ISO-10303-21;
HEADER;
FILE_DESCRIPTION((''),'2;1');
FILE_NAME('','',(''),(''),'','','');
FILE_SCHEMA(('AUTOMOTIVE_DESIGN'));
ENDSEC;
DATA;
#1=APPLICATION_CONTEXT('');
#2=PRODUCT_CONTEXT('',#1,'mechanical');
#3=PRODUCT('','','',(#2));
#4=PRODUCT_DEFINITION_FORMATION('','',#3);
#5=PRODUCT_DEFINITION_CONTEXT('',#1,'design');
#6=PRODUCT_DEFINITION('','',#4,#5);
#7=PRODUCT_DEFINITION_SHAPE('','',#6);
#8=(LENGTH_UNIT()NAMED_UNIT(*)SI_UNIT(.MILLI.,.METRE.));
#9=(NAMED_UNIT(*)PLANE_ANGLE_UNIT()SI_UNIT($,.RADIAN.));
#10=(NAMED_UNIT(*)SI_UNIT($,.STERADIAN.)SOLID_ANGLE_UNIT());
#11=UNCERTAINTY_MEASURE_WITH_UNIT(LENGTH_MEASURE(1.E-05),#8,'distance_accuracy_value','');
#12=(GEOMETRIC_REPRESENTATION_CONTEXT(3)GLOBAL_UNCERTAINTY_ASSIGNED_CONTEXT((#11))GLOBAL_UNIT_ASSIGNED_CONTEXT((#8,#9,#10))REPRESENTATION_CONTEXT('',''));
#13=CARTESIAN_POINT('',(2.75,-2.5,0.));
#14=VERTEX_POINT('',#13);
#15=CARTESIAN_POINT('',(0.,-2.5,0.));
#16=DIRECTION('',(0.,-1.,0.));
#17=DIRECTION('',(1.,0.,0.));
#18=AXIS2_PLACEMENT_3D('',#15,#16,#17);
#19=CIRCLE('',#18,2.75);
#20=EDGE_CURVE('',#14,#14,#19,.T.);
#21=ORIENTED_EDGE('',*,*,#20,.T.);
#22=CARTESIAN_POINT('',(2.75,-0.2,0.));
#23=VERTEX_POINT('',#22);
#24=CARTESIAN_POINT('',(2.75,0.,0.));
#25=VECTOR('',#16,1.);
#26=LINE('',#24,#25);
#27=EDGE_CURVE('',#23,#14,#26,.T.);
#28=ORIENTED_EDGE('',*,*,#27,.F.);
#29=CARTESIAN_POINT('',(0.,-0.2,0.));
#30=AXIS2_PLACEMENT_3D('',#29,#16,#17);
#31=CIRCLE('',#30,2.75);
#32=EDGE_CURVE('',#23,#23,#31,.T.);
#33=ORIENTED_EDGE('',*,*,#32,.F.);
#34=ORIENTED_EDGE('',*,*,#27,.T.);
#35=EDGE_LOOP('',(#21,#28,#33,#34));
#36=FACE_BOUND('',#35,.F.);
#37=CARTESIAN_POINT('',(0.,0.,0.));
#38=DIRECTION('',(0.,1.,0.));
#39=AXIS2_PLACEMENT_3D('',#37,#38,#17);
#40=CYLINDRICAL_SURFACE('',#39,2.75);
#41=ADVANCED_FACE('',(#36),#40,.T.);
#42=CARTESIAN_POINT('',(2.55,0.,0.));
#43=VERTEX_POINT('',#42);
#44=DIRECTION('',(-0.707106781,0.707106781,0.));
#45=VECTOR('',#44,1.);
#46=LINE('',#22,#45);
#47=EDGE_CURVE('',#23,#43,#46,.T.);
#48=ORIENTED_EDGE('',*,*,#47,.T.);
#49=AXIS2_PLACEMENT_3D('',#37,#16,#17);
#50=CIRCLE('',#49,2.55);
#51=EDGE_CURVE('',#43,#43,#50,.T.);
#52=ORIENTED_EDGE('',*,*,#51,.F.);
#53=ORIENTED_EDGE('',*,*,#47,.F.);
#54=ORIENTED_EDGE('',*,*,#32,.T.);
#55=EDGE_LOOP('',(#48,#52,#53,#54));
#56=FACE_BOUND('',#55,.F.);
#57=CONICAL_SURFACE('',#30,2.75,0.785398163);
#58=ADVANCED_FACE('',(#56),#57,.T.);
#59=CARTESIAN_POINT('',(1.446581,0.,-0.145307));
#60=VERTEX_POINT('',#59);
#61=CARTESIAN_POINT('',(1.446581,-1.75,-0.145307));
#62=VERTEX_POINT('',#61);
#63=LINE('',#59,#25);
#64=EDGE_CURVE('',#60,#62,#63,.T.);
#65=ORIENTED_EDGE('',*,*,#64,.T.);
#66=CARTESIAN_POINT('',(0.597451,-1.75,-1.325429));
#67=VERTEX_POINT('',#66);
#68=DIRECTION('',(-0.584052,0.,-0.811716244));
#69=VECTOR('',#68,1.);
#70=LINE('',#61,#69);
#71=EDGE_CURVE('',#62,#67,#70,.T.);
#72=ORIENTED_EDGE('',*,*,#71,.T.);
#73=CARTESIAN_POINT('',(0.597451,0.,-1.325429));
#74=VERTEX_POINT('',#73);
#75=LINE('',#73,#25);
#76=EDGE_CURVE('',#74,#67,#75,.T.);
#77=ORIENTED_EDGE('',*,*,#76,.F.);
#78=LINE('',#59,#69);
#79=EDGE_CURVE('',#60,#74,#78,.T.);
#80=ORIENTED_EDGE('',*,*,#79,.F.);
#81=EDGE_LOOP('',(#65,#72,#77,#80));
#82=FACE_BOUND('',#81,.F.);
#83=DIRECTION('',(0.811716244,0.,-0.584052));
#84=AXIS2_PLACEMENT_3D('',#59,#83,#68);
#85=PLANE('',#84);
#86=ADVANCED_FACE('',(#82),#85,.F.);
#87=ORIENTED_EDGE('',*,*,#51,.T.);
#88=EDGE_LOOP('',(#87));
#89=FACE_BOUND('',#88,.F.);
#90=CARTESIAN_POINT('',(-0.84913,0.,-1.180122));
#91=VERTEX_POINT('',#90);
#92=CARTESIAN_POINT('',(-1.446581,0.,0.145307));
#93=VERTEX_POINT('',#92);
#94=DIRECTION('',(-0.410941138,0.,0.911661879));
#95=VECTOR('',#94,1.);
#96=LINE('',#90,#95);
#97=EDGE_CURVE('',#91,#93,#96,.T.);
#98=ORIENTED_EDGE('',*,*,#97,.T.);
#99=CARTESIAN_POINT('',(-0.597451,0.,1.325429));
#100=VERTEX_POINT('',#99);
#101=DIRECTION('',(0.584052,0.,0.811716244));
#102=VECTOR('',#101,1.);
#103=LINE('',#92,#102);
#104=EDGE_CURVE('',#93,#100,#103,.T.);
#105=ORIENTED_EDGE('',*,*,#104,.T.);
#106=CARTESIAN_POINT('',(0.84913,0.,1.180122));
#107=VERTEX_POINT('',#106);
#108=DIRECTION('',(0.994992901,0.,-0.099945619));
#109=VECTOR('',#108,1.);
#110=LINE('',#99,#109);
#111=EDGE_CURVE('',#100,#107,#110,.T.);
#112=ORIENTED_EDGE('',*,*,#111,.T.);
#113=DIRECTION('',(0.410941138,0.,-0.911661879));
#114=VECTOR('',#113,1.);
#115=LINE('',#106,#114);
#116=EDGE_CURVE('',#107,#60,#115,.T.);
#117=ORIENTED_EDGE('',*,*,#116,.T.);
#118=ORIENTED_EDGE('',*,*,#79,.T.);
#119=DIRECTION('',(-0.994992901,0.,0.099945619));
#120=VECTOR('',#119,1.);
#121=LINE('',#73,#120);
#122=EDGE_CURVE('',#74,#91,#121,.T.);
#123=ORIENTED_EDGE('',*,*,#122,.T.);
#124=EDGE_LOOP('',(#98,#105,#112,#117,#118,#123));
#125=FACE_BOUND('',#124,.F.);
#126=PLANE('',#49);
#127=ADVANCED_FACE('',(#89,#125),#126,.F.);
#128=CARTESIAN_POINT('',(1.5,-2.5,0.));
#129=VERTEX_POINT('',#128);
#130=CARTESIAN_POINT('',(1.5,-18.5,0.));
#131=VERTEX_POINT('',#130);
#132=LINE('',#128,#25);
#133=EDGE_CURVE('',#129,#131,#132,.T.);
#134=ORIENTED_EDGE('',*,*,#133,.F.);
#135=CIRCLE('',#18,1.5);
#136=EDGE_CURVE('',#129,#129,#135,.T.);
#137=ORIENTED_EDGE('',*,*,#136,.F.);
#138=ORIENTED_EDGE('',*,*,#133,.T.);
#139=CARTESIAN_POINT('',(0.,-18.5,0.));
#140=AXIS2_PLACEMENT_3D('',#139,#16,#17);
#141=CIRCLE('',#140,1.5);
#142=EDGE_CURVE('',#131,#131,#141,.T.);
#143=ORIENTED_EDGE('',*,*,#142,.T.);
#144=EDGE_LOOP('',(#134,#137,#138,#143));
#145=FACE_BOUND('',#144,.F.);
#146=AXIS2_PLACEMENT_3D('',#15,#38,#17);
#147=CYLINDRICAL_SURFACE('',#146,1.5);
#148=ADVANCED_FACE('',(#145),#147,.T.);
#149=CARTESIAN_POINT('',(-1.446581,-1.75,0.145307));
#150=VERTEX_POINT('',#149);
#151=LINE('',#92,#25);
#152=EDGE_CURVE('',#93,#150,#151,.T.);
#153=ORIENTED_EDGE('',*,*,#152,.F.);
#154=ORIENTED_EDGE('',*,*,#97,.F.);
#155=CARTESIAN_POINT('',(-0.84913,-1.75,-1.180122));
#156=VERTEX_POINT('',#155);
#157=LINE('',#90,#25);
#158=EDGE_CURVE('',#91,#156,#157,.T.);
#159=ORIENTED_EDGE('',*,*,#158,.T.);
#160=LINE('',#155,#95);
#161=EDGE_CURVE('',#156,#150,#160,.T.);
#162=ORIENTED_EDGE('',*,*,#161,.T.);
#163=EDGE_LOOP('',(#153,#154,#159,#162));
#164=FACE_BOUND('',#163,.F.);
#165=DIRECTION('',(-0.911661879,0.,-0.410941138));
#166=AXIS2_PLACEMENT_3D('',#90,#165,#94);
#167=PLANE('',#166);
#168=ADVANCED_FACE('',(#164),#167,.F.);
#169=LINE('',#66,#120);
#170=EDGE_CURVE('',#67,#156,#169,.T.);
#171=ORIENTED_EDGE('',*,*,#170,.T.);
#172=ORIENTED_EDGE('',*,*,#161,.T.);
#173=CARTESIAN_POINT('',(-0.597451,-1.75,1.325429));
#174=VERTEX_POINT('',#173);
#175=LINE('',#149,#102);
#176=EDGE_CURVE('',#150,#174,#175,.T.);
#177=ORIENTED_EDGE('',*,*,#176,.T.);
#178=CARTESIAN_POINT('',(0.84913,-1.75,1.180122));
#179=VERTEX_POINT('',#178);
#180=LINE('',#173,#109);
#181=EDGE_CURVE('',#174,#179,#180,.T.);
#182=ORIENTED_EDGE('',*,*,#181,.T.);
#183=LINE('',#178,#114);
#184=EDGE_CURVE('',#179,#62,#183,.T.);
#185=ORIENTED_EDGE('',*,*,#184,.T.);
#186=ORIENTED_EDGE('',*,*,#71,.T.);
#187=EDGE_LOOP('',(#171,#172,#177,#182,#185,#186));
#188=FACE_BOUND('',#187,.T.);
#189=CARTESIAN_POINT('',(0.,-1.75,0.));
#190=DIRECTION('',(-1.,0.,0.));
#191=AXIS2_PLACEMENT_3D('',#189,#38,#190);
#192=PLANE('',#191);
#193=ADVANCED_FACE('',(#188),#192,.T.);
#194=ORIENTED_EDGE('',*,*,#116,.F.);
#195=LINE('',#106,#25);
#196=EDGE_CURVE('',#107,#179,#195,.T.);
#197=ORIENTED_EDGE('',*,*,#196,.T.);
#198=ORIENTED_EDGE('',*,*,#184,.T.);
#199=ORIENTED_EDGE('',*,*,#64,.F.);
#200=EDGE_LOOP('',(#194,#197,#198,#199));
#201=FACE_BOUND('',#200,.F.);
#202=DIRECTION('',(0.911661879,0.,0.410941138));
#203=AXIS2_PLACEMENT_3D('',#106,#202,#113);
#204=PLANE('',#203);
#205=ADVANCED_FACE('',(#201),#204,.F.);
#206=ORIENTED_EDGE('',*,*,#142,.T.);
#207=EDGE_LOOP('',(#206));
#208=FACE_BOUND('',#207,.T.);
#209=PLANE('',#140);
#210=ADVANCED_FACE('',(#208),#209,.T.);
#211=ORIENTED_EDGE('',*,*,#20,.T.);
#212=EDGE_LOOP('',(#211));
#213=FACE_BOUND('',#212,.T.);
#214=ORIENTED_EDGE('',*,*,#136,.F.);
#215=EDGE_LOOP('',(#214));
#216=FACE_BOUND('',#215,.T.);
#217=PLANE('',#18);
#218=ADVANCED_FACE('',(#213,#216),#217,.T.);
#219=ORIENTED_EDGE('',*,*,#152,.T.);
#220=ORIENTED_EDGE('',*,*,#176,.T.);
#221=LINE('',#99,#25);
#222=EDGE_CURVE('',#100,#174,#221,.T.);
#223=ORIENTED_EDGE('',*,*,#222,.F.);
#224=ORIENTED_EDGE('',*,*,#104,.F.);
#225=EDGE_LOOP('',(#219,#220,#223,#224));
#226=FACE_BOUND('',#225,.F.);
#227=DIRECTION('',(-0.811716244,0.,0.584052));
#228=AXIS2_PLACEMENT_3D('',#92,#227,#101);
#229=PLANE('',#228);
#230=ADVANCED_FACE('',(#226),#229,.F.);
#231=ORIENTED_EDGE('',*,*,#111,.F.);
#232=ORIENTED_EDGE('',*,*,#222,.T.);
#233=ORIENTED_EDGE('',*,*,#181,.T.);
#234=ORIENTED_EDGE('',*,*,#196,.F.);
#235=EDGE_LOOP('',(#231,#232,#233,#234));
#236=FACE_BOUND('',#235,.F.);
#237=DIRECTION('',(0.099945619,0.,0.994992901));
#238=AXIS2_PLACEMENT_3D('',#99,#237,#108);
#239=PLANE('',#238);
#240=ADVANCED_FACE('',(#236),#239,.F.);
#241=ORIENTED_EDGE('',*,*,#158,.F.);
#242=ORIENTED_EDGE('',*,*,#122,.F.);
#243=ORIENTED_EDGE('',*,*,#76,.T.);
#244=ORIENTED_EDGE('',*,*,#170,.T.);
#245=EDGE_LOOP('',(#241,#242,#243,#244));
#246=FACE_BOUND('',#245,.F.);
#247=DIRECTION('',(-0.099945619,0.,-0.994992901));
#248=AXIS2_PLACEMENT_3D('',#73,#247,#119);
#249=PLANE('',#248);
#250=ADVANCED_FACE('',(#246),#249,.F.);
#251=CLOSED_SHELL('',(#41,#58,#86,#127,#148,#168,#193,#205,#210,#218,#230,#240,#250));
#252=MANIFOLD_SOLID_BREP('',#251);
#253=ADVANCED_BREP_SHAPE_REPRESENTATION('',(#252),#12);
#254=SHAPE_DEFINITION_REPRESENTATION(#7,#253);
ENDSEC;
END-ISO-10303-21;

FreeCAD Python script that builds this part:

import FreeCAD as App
import Part
import Sketcher
from FreeCAD import Vector
Q = App.Units.Quantity


def edges_at(feature, points):
    """Names of the edges that pass closest to the given points."""
    edges = feature.Shape.Edges
    near = lambda p: min(range(len(edges)), key=lambda i: edges[i].distToShape(Part.Vertex(*p))[0])
    return sorted({f"Edge{near(p) + 1}" for p in points})

doc = App.newDocument("Part")
body = doc.addObject("PartDesign::Body", "Body")

sketch1 = doc.addObject("Sketcher::SketchObject", "Sketch")
body.addObject(sketch1)
sketch1.AttachmentSupport = (doc.XZ_Plane, [""])
sketch1.MapMode = "FlatFace"
sketch1.addGeometry(Part.Circle(Vector(0, 0, 0), Vector(0, 0, 1), 2.8), False)
sketch1.addConstraint([
    Sketcher.Constraint("Coincident", 0, 3, -1, 1),
    Sketcher.Constraint("Diameter", 0, Q("5.5 mm")),
])
pad1 = doc.addObject("PartDesign::Pad", "Pad")
body.addObject(pad1)
pad1.Profile = sketch1
pad1.Length = 2.5

sketch2 = doc.addObject("Sketcher::SketchObject", "Sketch001")
body.addObject(sketch2)
sketch2.AttachmentSupport = (doc.XZ_Plane, [""])
sketch2.MapMode = "FlatFace"
sketch2.addGeometry([
    Part.LineSegment(Vector(-1.4, 0.1, 0), Vector(-0.6, 1.3, 0)),
    Part.LineSegment(Vector(-0.6, 1.3, 0), Vector(0.8, 1.2, 0)),
    Part.LineSegment(Vector(0.8, 1.2, 0), Vector(1.4, -0.1, 0)),
    Part.LineSegment(Vector(1.4, -0.1, 0), Vector(0.6, -1.3, 0)),
    Part.LineSegment(Vector(0.6, -1.3, 0), Vector(-0.8, -1.2, 0)),
    Part.LineSegment(Vector(-0.8, -1.2, 0), Vector(-1.4, 0.1, 0)),
], False)
sketch2.addConstraint([
    Sketcher.Constraint("Coincident", 0, 2, 1, 1),
    Sketcher.Constraint("Coincident", 1, 2, 2, 1),
    Sketcher.Constraint("Coincident", 2, 2, 3, 1),
    Sketcher.Constraint("Coincident", 3, 2, 4, 1),
    Sketcher.Constraint("Coincident", 4, 2, 5, 1),
    Sketcher.Constraint("Coincident", 5, 2, 0, 1),
    Sketcher.Constraint("Symmetric", 0, 2, 3, 2, -1, 1),
    Sketcher.Constraint("Symmetric", 1, 2, 4, 2, -1, 1),
    Sketcher.Constraint("Symmetric", 2, 2, 5, 2, -1, 1),
    Sketcher.Constraint("Equal", 0, 1),
    Sketcher.Constraint("Equal", 1, 2),
    Sketcher.Constraint("DistanceX", 0, 2, 3, 2, Q("1.194902 mm")),
    Sketcher.Constraint("Distance", 0, Q("1.45386 mm")),
    Sketcher.Constraint("DistanceY", -1, 1, 0, 2, Q("1.325429 mm")),
    Sketcher.Constraint("DistanceX", -1, 1, 1, 2, Q("0.84913 mm")),
])
pocket1 = doc.addObject("PartDesign::Pocket", "Pocket")
body.addObject(pocket1)
pocket1.Profile = sketch2
pocket1.Length = 1.75
pocket1.Reversed = True
doc.recompute()

chamfer = doc.addObject("PartDesign::Chamfer", "Chamfer")
body.addObject(chamfer)
chamfer.Base = (pocket1, edges_at(pocket1, [(-2.75, 0, 0)]))
chamfer.Size = 0.2

sketch3 = doc.addObject("Sketcher::SketchObject", "Sketch002")
body.addObject(sketch3)
sketch3.AttachmentSupport = (doc.XZ_Plane, [""])
sketch3.MapMode = "FlatFace"
sketch3.AttachmentOffset = App.Placement(Vector(0, 0, 2.5), App.Rotation())
sketch3.addGeometry(Part.Circle(Vector(0, 0, 0), Vector(0, 0, 1), 1.5), False)
sketch3.addConstraint([
    Sketcher.Constraint("Coincident", 0, 3, -1, 1),
    Sketcher.Constraint("Diameter", 0, Q("3 mm")),
])
pad2 = doc.addObject("PartDesign::Pad", "Pad001")
body.addObject(pad2)
pad2.Profile = sketch3
pad2.Length = 16

doc.recompute()
